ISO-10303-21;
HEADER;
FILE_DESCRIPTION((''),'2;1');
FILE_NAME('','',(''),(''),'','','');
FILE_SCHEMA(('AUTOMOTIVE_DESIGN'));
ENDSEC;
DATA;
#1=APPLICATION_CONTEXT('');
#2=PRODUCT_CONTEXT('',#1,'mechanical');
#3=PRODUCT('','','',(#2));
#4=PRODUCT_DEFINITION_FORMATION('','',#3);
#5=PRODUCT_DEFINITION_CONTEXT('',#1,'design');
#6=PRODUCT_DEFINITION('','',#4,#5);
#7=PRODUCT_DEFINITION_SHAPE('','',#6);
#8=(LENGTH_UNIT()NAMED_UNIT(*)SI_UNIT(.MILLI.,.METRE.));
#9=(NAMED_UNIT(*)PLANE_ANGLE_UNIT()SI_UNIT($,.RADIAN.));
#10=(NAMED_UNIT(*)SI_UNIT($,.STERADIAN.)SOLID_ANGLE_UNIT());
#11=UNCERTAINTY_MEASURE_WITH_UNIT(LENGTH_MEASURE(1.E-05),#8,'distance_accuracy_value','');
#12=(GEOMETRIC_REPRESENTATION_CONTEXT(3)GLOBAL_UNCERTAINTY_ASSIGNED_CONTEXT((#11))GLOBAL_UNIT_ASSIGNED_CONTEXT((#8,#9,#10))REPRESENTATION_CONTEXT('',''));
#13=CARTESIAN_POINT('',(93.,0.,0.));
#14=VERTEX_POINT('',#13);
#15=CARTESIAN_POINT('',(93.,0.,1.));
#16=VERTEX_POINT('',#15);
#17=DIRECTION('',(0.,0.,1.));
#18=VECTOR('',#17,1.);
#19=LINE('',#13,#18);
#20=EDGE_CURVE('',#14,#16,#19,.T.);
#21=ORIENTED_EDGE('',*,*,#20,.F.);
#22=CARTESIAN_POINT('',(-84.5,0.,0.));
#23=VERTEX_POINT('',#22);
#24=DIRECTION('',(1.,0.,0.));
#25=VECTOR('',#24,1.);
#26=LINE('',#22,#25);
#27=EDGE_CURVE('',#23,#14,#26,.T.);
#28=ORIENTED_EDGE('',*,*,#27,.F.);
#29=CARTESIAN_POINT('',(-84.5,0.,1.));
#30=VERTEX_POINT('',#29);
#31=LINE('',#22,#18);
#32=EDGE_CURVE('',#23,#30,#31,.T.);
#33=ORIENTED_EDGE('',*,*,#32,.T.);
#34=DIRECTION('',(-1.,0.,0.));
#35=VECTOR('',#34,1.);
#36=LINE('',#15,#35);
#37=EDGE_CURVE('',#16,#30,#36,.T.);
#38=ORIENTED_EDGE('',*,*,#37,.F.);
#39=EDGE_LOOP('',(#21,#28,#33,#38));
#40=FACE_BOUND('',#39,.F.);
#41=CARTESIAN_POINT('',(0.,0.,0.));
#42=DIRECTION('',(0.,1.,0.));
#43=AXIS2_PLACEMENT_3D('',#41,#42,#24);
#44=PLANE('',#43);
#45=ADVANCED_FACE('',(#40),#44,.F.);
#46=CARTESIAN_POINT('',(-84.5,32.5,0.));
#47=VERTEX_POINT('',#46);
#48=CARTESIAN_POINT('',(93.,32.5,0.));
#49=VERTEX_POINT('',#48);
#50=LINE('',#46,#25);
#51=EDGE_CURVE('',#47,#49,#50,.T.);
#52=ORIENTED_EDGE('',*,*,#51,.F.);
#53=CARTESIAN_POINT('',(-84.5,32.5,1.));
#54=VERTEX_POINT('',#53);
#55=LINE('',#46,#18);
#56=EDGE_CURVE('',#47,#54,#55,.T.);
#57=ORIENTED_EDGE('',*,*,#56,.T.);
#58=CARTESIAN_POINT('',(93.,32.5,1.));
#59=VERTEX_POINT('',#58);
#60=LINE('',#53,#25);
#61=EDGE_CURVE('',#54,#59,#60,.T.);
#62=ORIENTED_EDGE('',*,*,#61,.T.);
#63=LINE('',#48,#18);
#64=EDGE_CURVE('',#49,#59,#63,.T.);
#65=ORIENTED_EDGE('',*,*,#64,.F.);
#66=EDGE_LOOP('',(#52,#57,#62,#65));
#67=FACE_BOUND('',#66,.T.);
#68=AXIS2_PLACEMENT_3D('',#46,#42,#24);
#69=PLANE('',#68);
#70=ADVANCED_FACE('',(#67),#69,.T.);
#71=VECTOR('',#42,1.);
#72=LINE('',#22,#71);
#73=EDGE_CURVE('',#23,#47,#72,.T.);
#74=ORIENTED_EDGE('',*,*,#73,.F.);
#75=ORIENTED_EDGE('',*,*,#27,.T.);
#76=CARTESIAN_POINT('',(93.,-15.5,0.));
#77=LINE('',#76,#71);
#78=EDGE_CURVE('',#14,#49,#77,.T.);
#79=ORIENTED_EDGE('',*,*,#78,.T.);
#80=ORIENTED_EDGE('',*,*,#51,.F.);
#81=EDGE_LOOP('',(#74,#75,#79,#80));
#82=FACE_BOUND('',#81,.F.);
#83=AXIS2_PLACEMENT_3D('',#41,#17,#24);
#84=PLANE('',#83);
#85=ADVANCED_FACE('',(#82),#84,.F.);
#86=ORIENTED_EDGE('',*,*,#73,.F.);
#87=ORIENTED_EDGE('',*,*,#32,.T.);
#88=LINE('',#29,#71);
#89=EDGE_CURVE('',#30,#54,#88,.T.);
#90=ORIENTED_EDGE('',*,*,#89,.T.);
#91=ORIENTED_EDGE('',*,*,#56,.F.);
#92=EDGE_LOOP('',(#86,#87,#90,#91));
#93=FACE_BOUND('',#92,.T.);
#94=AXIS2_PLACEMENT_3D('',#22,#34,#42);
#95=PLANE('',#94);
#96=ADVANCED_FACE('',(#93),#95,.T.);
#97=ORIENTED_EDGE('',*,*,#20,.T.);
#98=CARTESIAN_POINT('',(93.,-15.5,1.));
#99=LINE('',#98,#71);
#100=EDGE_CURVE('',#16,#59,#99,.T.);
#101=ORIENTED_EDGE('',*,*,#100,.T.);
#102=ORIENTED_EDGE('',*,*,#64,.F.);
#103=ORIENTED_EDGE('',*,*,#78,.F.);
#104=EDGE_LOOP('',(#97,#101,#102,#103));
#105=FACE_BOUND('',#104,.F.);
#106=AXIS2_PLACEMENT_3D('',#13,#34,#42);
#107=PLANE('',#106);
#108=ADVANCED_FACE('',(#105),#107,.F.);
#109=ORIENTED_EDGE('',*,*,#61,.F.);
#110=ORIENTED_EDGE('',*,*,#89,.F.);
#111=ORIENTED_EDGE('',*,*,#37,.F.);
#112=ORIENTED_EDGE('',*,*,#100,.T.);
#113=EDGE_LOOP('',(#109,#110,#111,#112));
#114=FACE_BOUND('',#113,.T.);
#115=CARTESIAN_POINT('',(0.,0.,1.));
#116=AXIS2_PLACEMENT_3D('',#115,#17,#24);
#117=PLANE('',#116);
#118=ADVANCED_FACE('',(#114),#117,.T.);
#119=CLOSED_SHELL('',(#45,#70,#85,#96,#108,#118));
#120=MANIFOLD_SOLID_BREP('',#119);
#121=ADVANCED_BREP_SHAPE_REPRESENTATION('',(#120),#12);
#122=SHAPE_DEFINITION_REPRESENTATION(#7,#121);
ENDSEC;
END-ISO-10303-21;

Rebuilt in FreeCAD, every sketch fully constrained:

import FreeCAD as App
import Part
import Sketcher
from FreeCAD import Vector

doc = App.newDocument("Part")
params = doc.addObject("Spreadsheet::Sheet", "Params")
for row, (alias, value) in enumerate([
    ("sketch1_width", "177.5 mm"),
    ("sketch1_height", "32.5 mm"),
    ("pad1_length", "1 mm"),
], start=1):
    params.set(f"A{row}", alias)
    params.set(f"B{row}", "=" + value)
    params.setAlias(f"B{row}", alias)

body = doc.addObject("PartDesign::Body", "Body")

# Sketch on XY plane
sketch1 = body.newObject("Sketcher::SketchObject", "Sketch")
sketch1.AttachmentSupport = (doc.getObject("XY_Plane"), [""])
sketch1.MapMode = "FlatFace"
sketch1.addGeometry(Part.LineSegment(Vector(93, 0, 0), Vector(93, 32.5, 0)), False)
sketch1.addGeometry(Part.LineSegment(Vector(93, 32.5, 0), Vector(-84.5, 32.5, 0)), False)
sketch1.addGeometry(Part.LineSegment(Vector(-84.5, 32.5, 0), Vector(-84.5, 0, 0)), False)
sketch1.addGeometry(Part.LineSegment(Vector(-84.5, 0, 0), Vector(93, 0, 0)), False)
sketch1.addConstraint(Sketcher.Constraint("Coincident", 0, 2, 1, 1))
sketch1.addConstraint(Sketcher.Constraint("Coincident", 1, 2, 2, 1))
sketch1.addConstraint(Sketcher.Constraint("Coincident", 2, 2, 3, 1))
sketch1.addConstraint(Sketcher.Constraint("Coincident", 3, 2, 0, 1))
sketch1.addConstraint(Sketcher.Constraint("Vertical", 0))
sketch1.addConstraint(Sketcher.Constraint("Horizontal", 1))
sketch1.addConstraint(Sketcher.Constraint("Vertical", 2))
sketch1.addConstraint(Sketcher.Constraint("Horizontal", 3))
sketch1.addConstraint(Sketcher.Constraint("PointOnObject", 2, 2, -1))
sketch1.addConstraint(Sketcher.Constraint("DistanceX", 1, 2, -1, 1, 84.5))
sketch1.addConstraint(Sketcher.Constraint("DistanceX", 1, 2, 1, 1, 177.5))
sketch1.addConstraint(Sketcher.Constraint("DistanceY", 0, 1, 0, 2, 32.5))
sketch1.setExpression("Constraints[10]", "Params.sketch1_width")
sketch1.setExpression("Constraints[11]", "Params.sketch1_height")
pad1 = body.newObject("PartDesign::Pad", "Pad")
pad1.Profile = sketch1
pad1.setExpression("Length", "Params.pad1_length")

doc.recompute()
